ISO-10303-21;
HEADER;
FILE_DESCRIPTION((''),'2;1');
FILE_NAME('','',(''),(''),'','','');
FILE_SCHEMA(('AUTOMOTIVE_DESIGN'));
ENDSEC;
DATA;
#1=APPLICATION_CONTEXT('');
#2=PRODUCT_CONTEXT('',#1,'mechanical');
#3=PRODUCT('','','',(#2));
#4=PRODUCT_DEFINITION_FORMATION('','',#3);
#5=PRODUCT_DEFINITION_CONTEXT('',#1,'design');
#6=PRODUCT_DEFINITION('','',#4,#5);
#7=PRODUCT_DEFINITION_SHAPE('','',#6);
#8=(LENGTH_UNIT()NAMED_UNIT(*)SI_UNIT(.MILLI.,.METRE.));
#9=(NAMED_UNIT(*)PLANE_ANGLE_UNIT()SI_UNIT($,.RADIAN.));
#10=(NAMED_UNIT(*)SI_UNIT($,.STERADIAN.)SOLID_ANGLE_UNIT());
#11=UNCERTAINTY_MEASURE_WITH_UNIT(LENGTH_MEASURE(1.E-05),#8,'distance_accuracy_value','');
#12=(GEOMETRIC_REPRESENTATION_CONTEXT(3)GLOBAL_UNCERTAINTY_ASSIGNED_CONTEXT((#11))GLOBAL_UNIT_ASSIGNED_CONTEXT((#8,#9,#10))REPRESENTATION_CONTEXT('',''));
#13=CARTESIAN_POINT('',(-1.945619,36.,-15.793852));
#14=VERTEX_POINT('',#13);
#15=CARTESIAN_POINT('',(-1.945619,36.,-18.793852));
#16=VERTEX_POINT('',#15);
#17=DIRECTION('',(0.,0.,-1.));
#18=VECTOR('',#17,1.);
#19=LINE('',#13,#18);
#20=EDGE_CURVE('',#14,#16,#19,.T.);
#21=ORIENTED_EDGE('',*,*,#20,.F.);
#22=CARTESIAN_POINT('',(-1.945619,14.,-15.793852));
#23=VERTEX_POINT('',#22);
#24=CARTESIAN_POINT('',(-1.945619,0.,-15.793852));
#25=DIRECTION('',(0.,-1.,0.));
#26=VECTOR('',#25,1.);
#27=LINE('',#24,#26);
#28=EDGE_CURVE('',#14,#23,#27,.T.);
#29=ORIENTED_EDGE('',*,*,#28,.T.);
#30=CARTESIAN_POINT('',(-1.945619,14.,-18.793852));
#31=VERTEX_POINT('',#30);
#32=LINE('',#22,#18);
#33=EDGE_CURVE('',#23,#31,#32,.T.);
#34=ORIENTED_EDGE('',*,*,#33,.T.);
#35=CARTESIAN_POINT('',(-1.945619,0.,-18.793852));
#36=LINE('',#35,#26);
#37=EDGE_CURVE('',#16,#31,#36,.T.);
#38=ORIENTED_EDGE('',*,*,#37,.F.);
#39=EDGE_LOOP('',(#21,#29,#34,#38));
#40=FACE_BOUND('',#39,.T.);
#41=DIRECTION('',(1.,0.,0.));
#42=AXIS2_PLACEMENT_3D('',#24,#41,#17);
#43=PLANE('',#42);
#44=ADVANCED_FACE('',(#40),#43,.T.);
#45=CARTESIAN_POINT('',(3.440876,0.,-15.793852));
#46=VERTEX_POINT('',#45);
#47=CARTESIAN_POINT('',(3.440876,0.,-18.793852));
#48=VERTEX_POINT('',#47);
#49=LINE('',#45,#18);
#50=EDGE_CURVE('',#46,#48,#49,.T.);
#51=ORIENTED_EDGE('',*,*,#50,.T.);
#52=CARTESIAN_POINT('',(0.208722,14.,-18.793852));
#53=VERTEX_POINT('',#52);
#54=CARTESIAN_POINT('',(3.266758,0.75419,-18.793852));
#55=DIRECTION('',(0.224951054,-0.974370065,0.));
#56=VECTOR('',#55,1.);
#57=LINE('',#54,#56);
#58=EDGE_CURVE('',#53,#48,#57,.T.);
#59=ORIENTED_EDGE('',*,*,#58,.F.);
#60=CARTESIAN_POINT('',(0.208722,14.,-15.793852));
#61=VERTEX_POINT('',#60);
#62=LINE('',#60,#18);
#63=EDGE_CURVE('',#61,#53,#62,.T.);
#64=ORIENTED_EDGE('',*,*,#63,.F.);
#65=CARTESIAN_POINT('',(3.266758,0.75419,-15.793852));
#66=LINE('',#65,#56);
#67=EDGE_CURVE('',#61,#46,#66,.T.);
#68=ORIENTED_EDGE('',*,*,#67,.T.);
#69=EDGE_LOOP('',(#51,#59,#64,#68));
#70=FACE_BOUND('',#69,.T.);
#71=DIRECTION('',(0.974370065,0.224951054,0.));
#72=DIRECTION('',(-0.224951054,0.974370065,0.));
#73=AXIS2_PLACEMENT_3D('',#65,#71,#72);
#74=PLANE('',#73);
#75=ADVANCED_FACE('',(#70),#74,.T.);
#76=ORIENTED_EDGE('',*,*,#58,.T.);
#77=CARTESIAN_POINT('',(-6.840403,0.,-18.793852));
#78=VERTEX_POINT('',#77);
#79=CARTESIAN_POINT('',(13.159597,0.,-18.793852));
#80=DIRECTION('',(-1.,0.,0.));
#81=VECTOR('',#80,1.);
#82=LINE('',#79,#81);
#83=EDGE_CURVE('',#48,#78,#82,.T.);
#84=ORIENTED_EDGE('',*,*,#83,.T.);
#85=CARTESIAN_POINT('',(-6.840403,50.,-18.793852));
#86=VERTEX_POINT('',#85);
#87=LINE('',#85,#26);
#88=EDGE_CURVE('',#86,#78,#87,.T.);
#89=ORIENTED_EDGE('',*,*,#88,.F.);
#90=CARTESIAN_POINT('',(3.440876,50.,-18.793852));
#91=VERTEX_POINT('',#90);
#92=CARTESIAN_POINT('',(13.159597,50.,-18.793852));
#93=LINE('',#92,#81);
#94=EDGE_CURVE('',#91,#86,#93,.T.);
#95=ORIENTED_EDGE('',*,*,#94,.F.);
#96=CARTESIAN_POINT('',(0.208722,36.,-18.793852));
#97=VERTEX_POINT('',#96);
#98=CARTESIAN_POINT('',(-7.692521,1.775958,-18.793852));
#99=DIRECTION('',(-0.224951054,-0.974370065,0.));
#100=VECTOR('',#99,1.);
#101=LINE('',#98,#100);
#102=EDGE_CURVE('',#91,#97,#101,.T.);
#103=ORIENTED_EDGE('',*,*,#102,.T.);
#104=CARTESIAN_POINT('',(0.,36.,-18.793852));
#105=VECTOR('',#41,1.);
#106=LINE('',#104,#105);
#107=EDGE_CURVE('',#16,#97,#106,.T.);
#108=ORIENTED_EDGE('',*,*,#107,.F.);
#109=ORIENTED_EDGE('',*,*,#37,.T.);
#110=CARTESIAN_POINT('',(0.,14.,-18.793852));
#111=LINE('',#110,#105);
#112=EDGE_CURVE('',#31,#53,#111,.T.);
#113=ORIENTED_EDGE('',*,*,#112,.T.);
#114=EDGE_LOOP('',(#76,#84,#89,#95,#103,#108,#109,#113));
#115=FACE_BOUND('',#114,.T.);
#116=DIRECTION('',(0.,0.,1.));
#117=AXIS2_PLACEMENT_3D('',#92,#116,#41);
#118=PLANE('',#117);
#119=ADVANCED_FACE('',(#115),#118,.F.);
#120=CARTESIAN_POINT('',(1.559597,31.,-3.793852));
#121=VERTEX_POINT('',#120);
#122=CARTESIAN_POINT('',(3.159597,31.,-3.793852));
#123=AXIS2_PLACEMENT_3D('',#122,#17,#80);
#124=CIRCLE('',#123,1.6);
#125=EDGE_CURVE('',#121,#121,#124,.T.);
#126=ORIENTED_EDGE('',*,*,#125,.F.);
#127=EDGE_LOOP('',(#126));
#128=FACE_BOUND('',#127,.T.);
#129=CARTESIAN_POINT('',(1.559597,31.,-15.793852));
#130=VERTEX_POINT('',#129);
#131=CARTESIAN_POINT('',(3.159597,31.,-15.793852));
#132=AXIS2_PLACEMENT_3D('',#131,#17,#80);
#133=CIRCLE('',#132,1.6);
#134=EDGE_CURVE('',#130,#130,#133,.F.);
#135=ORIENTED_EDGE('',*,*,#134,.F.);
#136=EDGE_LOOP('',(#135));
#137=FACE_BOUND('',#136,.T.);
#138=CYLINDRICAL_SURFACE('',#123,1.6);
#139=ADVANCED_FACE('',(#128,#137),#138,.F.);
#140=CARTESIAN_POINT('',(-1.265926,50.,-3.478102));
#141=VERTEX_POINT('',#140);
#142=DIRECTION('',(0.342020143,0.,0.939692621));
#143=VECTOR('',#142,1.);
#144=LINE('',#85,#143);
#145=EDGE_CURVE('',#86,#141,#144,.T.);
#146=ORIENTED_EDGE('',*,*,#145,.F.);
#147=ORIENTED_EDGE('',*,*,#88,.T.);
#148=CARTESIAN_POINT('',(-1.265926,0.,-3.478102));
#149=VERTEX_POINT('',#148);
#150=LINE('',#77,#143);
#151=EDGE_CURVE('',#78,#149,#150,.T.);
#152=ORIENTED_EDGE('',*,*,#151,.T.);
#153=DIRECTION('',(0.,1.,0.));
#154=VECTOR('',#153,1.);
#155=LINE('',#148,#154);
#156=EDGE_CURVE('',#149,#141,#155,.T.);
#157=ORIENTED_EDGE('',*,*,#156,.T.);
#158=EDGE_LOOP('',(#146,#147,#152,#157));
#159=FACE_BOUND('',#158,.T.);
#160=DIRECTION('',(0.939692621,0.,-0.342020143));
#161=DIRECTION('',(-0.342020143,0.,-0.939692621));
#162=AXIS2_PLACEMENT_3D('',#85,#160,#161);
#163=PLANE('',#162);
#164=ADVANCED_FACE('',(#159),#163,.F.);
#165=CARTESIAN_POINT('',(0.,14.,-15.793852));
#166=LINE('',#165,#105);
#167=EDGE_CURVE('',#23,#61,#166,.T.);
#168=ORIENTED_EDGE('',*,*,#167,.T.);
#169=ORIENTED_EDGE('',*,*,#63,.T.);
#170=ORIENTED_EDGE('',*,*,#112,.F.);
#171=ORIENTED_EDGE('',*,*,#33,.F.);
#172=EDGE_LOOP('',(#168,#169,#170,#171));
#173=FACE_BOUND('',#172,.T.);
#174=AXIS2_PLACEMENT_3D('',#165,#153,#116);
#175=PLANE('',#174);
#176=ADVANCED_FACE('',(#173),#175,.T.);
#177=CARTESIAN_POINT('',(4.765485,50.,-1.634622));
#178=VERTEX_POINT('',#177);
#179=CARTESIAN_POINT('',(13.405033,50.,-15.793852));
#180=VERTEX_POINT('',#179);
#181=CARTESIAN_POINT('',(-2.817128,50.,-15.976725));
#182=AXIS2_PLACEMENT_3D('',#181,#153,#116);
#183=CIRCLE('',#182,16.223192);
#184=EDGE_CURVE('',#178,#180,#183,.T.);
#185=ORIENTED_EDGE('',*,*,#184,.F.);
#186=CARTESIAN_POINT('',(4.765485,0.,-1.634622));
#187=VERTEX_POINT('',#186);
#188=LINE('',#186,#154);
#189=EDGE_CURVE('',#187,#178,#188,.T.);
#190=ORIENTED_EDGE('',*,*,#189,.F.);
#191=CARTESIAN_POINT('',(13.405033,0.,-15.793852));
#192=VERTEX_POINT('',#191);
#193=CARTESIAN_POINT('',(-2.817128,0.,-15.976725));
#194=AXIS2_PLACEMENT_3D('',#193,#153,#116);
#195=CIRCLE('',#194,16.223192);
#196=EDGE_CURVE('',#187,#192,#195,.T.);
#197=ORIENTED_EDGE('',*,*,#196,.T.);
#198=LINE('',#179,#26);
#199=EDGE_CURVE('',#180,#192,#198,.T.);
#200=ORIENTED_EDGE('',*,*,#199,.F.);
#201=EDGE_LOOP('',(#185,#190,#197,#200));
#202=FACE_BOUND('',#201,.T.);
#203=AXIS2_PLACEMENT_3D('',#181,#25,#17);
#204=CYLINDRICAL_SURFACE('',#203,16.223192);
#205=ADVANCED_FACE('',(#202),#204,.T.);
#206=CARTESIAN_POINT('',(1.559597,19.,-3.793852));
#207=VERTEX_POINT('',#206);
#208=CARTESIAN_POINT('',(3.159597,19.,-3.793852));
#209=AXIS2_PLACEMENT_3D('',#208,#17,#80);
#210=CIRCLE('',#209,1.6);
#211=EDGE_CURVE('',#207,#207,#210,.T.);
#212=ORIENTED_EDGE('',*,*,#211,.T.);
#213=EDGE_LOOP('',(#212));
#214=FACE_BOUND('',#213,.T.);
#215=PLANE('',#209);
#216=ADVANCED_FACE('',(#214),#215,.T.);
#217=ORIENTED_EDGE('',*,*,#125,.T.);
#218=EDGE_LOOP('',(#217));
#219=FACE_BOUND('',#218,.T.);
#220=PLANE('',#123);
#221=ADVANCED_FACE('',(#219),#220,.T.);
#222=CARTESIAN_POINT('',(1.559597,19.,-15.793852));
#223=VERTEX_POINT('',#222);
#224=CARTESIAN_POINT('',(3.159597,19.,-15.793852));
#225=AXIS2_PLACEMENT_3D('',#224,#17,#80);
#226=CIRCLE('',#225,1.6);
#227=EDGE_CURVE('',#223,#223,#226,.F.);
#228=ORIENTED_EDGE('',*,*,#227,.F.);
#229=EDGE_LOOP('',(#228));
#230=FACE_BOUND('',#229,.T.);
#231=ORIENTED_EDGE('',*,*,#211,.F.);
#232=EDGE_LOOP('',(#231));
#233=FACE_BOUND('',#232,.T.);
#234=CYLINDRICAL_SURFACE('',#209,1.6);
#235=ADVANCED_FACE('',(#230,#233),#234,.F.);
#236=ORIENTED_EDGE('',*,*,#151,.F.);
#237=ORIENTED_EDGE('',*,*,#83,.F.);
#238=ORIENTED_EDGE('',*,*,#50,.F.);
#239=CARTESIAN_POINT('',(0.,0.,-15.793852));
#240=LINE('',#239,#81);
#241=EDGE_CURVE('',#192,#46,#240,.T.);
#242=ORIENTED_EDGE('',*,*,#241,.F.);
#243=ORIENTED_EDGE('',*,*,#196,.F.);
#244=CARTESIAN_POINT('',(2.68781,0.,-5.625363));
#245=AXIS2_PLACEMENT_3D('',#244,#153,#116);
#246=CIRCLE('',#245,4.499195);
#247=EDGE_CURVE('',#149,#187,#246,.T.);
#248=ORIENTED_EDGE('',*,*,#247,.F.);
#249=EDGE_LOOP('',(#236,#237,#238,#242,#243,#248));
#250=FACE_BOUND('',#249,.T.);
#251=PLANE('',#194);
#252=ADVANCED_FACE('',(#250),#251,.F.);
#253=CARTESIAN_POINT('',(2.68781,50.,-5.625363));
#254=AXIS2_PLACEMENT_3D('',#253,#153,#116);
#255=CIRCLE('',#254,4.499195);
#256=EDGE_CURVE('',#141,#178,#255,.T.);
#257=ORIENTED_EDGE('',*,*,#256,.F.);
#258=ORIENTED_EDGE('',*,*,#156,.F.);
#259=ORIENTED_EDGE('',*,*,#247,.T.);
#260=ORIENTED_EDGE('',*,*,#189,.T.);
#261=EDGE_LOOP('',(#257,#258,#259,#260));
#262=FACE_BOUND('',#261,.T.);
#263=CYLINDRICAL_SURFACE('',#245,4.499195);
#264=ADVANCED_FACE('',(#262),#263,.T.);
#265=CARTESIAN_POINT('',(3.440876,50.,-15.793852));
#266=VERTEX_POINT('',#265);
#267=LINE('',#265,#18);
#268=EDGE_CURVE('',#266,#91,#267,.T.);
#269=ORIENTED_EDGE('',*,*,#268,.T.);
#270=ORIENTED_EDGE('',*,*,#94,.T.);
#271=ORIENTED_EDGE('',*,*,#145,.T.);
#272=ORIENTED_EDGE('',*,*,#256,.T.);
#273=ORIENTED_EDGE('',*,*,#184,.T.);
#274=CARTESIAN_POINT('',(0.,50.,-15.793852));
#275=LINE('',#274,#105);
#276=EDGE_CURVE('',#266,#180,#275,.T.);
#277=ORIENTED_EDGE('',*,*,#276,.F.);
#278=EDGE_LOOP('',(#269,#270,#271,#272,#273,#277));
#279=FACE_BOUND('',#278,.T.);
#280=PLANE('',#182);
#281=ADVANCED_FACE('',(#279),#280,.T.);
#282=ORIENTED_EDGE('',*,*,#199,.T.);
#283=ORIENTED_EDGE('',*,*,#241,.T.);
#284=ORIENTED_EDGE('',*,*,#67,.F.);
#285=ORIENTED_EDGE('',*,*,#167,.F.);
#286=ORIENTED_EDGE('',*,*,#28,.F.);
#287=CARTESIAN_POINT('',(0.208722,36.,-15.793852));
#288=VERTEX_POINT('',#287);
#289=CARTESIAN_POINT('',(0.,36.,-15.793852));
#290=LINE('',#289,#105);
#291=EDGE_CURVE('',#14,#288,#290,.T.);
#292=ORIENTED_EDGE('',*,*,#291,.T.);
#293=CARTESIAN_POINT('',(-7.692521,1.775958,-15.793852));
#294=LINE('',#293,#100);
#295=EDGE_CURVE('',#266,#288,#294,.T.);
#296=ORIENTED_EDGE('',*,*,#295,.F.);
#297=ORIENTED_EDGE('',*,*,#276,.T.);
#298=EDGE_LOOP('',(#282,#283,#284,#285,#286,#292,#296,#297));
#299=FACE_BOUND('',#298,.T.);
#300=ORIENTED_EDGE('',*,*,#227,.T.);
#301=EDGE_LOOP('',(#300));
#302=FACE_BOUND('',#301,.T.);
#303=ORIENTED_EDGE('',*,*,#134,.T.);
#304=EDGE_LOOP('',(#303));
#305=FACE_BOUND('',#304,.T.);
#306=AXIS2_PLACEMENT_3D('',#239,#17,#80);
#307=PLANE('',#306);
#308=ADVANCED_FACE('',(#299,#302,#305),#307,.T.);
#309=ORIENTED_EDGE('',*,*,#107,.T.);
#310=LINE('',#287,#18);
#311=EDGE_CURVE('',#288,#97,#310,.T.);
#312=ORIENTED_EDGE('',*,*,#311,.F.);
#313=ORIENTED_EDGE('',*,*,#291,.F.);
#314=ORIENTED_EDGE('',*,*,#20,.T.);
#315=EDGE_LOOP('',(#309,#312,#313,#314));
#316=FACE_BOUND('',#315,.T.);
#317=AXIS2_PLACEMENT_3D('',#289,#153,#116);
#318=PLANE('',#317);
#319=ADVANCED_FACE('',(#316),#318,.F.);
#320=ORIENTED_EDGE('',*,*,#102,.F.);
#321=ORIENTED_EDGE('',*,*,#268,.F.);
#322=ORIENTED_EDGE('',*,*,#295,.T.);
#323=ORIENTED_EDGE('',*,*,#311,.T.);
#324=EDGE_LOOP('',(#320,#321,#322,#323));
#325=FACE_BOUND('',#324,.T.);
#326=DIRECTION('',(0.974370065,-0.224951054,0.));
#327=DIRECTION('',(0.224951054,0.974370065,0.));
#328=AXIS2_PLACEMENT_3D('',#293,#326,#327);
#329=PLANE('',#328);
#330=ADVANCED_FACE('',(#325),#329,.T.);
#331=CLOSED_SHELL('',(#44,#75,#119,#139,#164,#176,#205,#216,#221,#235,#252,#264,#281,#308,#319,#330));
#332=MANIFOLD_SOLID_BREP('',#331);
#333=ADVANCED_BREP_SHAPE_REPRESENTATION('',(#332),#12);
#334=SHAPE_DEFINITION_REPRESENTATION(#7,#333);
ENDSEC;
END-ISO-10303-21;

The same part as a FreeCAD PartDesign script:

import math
import FreeCAD as App
import Part
import Sketcher
Q = App.Units.Quantity


def add_polygon(sketch, points):
    """Adds a closed chain of lines whose ends are joined by coincident constraints."""
    first, n = sketch.GeometryCount, len(points)
    for a, b in zip(points, points[1:] + points[:1]):
        sketch.addGeometry(Part.LineSegment(App.Vector(*a, 0), App.Vector(*b, 0)), False)
    for i in range(n):
        sketch.addConstraint(Sketcher.Constraint("Coincident", first + i, 2, first + (i + 1) % n, 1))

doc = App.newDocument("Part")
body = doc.addObject("PartDesign::Body", "Body")

# Sketch on XZ plane
sketch1 = body.newObject("Sketcher::SketchObject", "Sketch")
sketch1.AttachmentSupport = (doc.getObject("XZ_Plane"), [""])
sketch1.MapMode = "FlatFace"
sketch1.addGeometry([
    Part.LineSegment(App.Vector(13.159597, -18.793852, 0), App.Vector(-6.840403, -18.793852, 0)),
    Part.LineSegment(App.Vector(-6.840403, -18.793852, 0), App.Vector(0, 0, 0)),
    Part.ArcOfCircle(Part.Circle(App.Vector(-2.817128, -15.976725, 0), App.Vector(0, 0, 1), 16.223192), math.radians(-10), math.radians(80)),
], False)
sketch1.addConstraint([
    Sketcher.Constraint("Coincident", 0, 2, 1, 1),
    Sketcher.Constraint("Coincident", 1, 2, 2, 2),
    Sketcher.Constraint("Coincident", 2, 1, 0, 1),
    Sketcher.Constraint("Horizontal", 0),
    Sketcher.Constraint("Coincident", 1, 2, -1, 1),
    Sketcher.Constraint("DistanceX", 0, 2, 0, 1, Q("20 mm")),
    Sketcher.Constraint("Angle", 1, Q("70 deg")),
    Sketcher.Constraint("Distance", 1, Q("20 mm")),
    Sketcher.Constraint("Radius", 2, Q("16.223192 mm")),
])
pad1 = body.newObject("PartDesign::Pad", "Pad")
pad1.Profile = sketch1
pad1.Length = 50
pad1.Reversed = True

# Sketch on XZ plane
sketch2 = body.newObject("Sketcher::SketchObject", "Sketch001")
sketch2.AttachmentSupport = (doc.getObject("XZ_Plane"), [""])
sketch2.MapMode = "FlatFace"
sketch2.AttachmentOffset = App.Placement(App.Vector(0, 0, -50), App.Rotation())
sketch2.addGeometry([
    Part.ArcOfCircle(Part.Circle(App.Vector(2.68781, -5.625363, 0), App.Vector(0, 0, 1), 4.499195), math.radians(62.497437), math.radians(151.493753)),
    Part.LineSegment(App.Vector(-1.265926, -3.478102, 0), App.Vector(0, 0, 0)),
    Part.ArcOfCircle(Part.Circle(App.Vector(-2.817128, -15.976725, 0), App.Vector(0, 0, 1), 16.223192), math.radians(62.13477), math.radians(80)),
], False)
sketch2.addConstraint([
    Sketcher.Constraint("Coincident", 0, 2, 1, 1),
    Sketcher.Constraint("Coincident", 1, 2, 2, 2),
    Sketcher.Constraint("Coincident", 2, 1, 0, 1),
    Sketcher.Constraint("Coincident", 1, 2, -1, 1),
    Sketcher.Constraint("Angle", 1, Q("70 deg")),
    Sketcher.Constraint("Radius", 2, Q("16.223192 mm")),
    Sketcher.Constraint("Radius", 0, Q("4.499195 mm")),
    Sketcher.Constraint("DistanceY", 0, 2, -1, 1, Q("3.478102 mm")),
    Sketcher.Constraint("DistanceX", -1, 1, 0, 3, Q("2.68781 mm")),
    Sketcher.Constraint("DistanceY", 2, 1, -1, 1, Q("1.634622 mm")),
])
pocket1 = body.newObject("PartDesign::Pocket", "Pocket")
pocket1.Profile = sketch2
pocket1.Length = 50
pocket1.Reversed = True

# Sketch on XY plane
sketch3 = body.newObject("Sketcher::SketchObject", "Sketch002")
sketch3.AttachmentSupport = (doc.getObject("XY_Plane"), [""])
sketch3.MapMode = "FlatFace"
sketch3.AttachmentOffset = App.Placement(App.Vector(0, 0, -18.793852), App.Rotation())
sketch3.addGeometry([
    Part.Circle(App.Vector(3.159597, 19, 0), App.Vector(0, 0, 1), 1.6),
    Part.Circle(App.Vector(3.159597, 31, 0), App.Vector(0, 0, 1), 1.6),
], False)
sketch3.addConstraint([
    Sketcher.Constraint("Equal", 0, 1),
    Sketcher.Constraint("Vertical", 0, 3, 1, 3),
    Sketcher.Constraint("Diameter", 0, Q("3.2 mm")),
    Sketcher.Constraint("DistanceY", -1, 1, 0, 3, Q("19 mm")),
    Sketcher.Constraint("DistanceY", -1, 1, 1, 3, Q("31 mm")),
    Sketcher.Constraint("DistanceX", -1, 1, 0, 3, Q("3.159597 mm")),
])
pocket2 = body.newObject("PartDesign::Pocket", "Pocket001")
pocket2.Profile = sketch3
pocket2.Length = 15
pocket2.Reversed = True

# Sketch on XY plane
sketch4 = body.newObject("Sketcher::SketchObject", "Sketch003")
sketch4.AttachmentSupport = (doc.getObject("XY_Plane"), [""])
sketch4.MapMode = "FlatFace"
sketch4.AttachmentOffset = App.Placement(App.Vector(0, 0, -18.793852), App.Rotation())
add_polygon(sketch4, [(-0.945619, 36), (0.208722, 36), (1.455365, 41.399804), (3.440876, 50), (13.159597, 50), (13.159597, 0), (3.440876, 0), (1.455365, 8.600196), (0.208722, 14), (-0.945619, 14)])  # lines 0-9
sketch4.addGeometry(Part.Circle(App.Vector(3.159597, 19, 0), App.Vector(0, 0, 1), 1.6), False)  # 10
sketch4.addGeometry(Part.Circle(App.Vector(3.159597, 31, 0), App.Vector(0, 0, 1), 1.6), False)  # 11
sketch4.addConstraint([
    Sketcher.Constraint("Horizontal", 0),
    Sketcher.Constraint("Horizontal", 3),
    Sketcher.Constraint("Vertical", 4),
    Sketcher.Constraint("Horizontal", 5),
    Sketcher.Constraint("Horizontal", 8),
    Sketcher.Constraint("Vertical", 9),
    Sketcher.Constraint("Equal", 10, 11),
    Sketcher.Constraint("PointOnObject", 4, 2, -1),
    Sketcher.Constraint("Parallel", 1, 2),
    Sketcher.Constraint("Parallel", 6, 7),
    Sketcher.Constraint("Vertical", 10, 3, 11, 3),
    Sketcher.Constraint("Vertical", 2, 2, 5, 2),
    Sketcher.Constraint("Vertical", 1, 2, 6, 2),
    Sketcher.Constraint("Vertical", 0, 2, 7, 2),
    Sketcher.Constraint("Equal", 2, 6),
    Sketcher.Constraint("Diameter", 10, Q("3.2 mm")),
    Sketcher.Constraint("DistanceY", 4, 2, 4, 1, Q("50 mm")),
    Sketcher.Constraint("DistanceY", 9, 1, 9, 2, Q("22 mm")),
    Sketcher.Constraint("Angle", 1, Q("77 deg")),
    Sketcher.Constraint("DistanceY", -1, 1, 10, 3, Q("19 mm")),
    Sketcher.Constraint("DistanceY", -1, 1, 11, 3, Q("31 mm")),
    Sketcher.Constraint("DistanceX", 11, 3, 3, 2, Q("10 mm")),
    Sketcher.Constraint("DistanceX", 0, 1, 0, 2, Q("1.154341 mm")),
    Sketcher.Constraint("DistanceX", 3, 1, 3, 2, Q("9.718721 mm")),
    Sketcher.Constraint("Distance", 1, Q("5.541841 mm")),
    Sketcher.Constraint("DistanceX", -1, 1, 0, 2, Q("0.208722 mm")),
])
pocket3 = body.newObject("PartDesign::Pocket", "Pocket002")
pocket3.Profile = sketch4
pocket3.Length = 3
pocket3.Reversed = True

# Sketch on XY plane
sketch5 = body.newObject("Sketcher::SketchObject", "Sketch004")
sketch5.AttachmentSupport = (doc.getObject("XY_Plane"), [""])
sketch5.MapMode = "FlatFace"
sketch5.AttachmentOffset = App.Placement(App.Vector(0, 0, -18.793852), App.Rotation())
add_polygon(sketch5, [(14.826118, 50), (14.826118, 0), (13.159597, 0), (13.159597, 50)])  # lines 0-3
sketch5.addConstraint([
    Sketcher.Constraint("Vertical", 0),
    Sketcher.Constraint("Horizontal", 1),
    Sketcher.Constraint("Vertical", 2),
    Sketcher.Constraint("Horizontal", 3),
    Sketcher.Constraint("PointOnObject", 0, 2, -1),
    Sketcher.Constraint("DistanceY", 0, 2, 0, 1, Q("50 mm")),
    Sketcher.Constraint("DistanceX", 1, 2, 1, 1, Q("1.666521 mm")),
    Sketcher.Constraint("DistanceX", -1, 1, 0, 2, Q("14.826118 mm")),
])
pocket4 = body.newObject("PartDesign::Pocket", "Pocket003")
pocket4.Profile = sketch5
pocket4.Length = 3
pocket4.Reversed = True

# Sketch on XY plane
sketch6 = body.newObject("Sketcher::SketchObject", "Sketch005")
sketch6.AttachmentSupport = (doc.getObject("XY_Plane"), [""])
sketch6.MapMode = "FlatFace"
sketch6.AttachmentOffset = App.Placement(App.Vector(0, 0, -18.793852), App.Rotation())
add_polygon(sketch6, [(-1.945619, 14), (-1.945619, 36), (-0.945619, 36), (-0.945619, 14)])  # lines 0-3
sketch6.addConstraint([
    Sketcher.Constraint("Vertical", 0),
    Sketcher.Constraint("Horizontal", 1),
    Sketcher.Constraint("Vertical", 2),
    Sketcher.Constraint("Horizontal", 3),
    Sketcher.Constraint("DistanceX", 1, 1, 1, 2, Q("1 mm")),
    Sketcher.Constraint("DistanceY", 0, 1, 0, 2, Q("22 mm")),
    Sketcher.Constraint("DistanceY", -1, 1, 0, 2, Q("36 mm")),
    Sketcher.Constraint("DistanceX", 0, 2, -1, 1, Q("1.945619 mm")),
])
pocket5 = body.newObject("PartDesign::Pocket", "Pocket004")
pocket5.Profile = sketch6
pocket5.Length = 3
pocket5.Reversed = True

doc.recompute()
